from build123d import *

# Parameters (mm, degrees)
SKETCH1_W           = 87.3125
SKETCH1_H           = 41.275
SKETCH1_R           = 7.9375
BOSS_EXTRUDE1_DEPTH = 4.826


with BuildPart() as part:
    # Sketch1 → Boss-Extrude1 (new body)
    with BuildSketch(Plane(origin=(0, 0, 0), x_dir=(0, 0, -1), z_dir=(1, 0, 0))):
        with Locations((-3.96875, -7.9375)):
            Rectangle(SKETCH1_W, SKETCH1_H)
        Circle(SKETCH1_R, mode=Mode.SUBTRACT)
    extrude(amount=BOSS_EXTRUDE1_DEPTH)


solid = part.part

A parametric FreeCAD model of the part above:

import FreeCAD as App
import Part
import Sketcher
from FreeCAD import Vector
Q = App.Units.Quantity


def add_polygon(sketch, points):
    """Adds a closed chain of lines whose ends are joined by coincident constraints."""
    first, n = sketch.GeometryCount, len(points)
    for a, b in zip(points, points[1:] + points[:1]):
        sketch.addGeometry(Part.LineSegment(App.Vector(*a, 0), App.Vector(*b, 0)), False)
    for i in range(n):
        sketch.addConstraint(Sketcher.Constraint("Coincident", first + i, 2, first + (i + 1) % n, 1))

doc = App.newDocument("Part")
body = doc.addObject("PartDesign::Body", "Body")

sketch1 = body.newObject("Sketcher::SketchObject", "Sketch")
sketch1.AttachmentSupport = (doc.getObject("YZ_Plane"), [""])
sketch1.MapMode = "FlatFace"
add_polygon(sketch1, [(13, 48), (-29, 48), (-29, -40), (13, -40)])
sketch1.addGeometry(Part.Circle(Vector(0, 0, 0), Vector(0, 0, 1), 8), False)
sketch1.addConstraint([
    Sketcher.Constraint("Horizontal", 0),
    Sketcher.Constraint("Vertical", 1),
    Sketcher.Constraint("Horizontal", 2),
    Sketcher.Constraint("Vertical", 3),
    Sketcher.Constraint("Coincident", 4, 3, -1, 1),
    Sketcher.Constraint("Diameter", 4, Q("0.625 in")),
    Sketcher.Constraint("DistanceX", -1, 1, 2, 2, Q("0.5 in")),
    Sketcher.Constraint("DistanceX", 0, 2, 0, 1, Q("1.625 in")),
    Sketcher.Constraint("DistanceY", 1, 2, 1, 1, Q("3.4375 in")),
    Sketcher.Constraint("DistanceY", -1, 1, 0, 2, Q("1.875 in")),
])
pad1 = body.newObject("PartDesign::Pad", "Pad")
pad1.Profile = sketch1
pad1.Length = Q("0.19 in")

doc.recompute()
